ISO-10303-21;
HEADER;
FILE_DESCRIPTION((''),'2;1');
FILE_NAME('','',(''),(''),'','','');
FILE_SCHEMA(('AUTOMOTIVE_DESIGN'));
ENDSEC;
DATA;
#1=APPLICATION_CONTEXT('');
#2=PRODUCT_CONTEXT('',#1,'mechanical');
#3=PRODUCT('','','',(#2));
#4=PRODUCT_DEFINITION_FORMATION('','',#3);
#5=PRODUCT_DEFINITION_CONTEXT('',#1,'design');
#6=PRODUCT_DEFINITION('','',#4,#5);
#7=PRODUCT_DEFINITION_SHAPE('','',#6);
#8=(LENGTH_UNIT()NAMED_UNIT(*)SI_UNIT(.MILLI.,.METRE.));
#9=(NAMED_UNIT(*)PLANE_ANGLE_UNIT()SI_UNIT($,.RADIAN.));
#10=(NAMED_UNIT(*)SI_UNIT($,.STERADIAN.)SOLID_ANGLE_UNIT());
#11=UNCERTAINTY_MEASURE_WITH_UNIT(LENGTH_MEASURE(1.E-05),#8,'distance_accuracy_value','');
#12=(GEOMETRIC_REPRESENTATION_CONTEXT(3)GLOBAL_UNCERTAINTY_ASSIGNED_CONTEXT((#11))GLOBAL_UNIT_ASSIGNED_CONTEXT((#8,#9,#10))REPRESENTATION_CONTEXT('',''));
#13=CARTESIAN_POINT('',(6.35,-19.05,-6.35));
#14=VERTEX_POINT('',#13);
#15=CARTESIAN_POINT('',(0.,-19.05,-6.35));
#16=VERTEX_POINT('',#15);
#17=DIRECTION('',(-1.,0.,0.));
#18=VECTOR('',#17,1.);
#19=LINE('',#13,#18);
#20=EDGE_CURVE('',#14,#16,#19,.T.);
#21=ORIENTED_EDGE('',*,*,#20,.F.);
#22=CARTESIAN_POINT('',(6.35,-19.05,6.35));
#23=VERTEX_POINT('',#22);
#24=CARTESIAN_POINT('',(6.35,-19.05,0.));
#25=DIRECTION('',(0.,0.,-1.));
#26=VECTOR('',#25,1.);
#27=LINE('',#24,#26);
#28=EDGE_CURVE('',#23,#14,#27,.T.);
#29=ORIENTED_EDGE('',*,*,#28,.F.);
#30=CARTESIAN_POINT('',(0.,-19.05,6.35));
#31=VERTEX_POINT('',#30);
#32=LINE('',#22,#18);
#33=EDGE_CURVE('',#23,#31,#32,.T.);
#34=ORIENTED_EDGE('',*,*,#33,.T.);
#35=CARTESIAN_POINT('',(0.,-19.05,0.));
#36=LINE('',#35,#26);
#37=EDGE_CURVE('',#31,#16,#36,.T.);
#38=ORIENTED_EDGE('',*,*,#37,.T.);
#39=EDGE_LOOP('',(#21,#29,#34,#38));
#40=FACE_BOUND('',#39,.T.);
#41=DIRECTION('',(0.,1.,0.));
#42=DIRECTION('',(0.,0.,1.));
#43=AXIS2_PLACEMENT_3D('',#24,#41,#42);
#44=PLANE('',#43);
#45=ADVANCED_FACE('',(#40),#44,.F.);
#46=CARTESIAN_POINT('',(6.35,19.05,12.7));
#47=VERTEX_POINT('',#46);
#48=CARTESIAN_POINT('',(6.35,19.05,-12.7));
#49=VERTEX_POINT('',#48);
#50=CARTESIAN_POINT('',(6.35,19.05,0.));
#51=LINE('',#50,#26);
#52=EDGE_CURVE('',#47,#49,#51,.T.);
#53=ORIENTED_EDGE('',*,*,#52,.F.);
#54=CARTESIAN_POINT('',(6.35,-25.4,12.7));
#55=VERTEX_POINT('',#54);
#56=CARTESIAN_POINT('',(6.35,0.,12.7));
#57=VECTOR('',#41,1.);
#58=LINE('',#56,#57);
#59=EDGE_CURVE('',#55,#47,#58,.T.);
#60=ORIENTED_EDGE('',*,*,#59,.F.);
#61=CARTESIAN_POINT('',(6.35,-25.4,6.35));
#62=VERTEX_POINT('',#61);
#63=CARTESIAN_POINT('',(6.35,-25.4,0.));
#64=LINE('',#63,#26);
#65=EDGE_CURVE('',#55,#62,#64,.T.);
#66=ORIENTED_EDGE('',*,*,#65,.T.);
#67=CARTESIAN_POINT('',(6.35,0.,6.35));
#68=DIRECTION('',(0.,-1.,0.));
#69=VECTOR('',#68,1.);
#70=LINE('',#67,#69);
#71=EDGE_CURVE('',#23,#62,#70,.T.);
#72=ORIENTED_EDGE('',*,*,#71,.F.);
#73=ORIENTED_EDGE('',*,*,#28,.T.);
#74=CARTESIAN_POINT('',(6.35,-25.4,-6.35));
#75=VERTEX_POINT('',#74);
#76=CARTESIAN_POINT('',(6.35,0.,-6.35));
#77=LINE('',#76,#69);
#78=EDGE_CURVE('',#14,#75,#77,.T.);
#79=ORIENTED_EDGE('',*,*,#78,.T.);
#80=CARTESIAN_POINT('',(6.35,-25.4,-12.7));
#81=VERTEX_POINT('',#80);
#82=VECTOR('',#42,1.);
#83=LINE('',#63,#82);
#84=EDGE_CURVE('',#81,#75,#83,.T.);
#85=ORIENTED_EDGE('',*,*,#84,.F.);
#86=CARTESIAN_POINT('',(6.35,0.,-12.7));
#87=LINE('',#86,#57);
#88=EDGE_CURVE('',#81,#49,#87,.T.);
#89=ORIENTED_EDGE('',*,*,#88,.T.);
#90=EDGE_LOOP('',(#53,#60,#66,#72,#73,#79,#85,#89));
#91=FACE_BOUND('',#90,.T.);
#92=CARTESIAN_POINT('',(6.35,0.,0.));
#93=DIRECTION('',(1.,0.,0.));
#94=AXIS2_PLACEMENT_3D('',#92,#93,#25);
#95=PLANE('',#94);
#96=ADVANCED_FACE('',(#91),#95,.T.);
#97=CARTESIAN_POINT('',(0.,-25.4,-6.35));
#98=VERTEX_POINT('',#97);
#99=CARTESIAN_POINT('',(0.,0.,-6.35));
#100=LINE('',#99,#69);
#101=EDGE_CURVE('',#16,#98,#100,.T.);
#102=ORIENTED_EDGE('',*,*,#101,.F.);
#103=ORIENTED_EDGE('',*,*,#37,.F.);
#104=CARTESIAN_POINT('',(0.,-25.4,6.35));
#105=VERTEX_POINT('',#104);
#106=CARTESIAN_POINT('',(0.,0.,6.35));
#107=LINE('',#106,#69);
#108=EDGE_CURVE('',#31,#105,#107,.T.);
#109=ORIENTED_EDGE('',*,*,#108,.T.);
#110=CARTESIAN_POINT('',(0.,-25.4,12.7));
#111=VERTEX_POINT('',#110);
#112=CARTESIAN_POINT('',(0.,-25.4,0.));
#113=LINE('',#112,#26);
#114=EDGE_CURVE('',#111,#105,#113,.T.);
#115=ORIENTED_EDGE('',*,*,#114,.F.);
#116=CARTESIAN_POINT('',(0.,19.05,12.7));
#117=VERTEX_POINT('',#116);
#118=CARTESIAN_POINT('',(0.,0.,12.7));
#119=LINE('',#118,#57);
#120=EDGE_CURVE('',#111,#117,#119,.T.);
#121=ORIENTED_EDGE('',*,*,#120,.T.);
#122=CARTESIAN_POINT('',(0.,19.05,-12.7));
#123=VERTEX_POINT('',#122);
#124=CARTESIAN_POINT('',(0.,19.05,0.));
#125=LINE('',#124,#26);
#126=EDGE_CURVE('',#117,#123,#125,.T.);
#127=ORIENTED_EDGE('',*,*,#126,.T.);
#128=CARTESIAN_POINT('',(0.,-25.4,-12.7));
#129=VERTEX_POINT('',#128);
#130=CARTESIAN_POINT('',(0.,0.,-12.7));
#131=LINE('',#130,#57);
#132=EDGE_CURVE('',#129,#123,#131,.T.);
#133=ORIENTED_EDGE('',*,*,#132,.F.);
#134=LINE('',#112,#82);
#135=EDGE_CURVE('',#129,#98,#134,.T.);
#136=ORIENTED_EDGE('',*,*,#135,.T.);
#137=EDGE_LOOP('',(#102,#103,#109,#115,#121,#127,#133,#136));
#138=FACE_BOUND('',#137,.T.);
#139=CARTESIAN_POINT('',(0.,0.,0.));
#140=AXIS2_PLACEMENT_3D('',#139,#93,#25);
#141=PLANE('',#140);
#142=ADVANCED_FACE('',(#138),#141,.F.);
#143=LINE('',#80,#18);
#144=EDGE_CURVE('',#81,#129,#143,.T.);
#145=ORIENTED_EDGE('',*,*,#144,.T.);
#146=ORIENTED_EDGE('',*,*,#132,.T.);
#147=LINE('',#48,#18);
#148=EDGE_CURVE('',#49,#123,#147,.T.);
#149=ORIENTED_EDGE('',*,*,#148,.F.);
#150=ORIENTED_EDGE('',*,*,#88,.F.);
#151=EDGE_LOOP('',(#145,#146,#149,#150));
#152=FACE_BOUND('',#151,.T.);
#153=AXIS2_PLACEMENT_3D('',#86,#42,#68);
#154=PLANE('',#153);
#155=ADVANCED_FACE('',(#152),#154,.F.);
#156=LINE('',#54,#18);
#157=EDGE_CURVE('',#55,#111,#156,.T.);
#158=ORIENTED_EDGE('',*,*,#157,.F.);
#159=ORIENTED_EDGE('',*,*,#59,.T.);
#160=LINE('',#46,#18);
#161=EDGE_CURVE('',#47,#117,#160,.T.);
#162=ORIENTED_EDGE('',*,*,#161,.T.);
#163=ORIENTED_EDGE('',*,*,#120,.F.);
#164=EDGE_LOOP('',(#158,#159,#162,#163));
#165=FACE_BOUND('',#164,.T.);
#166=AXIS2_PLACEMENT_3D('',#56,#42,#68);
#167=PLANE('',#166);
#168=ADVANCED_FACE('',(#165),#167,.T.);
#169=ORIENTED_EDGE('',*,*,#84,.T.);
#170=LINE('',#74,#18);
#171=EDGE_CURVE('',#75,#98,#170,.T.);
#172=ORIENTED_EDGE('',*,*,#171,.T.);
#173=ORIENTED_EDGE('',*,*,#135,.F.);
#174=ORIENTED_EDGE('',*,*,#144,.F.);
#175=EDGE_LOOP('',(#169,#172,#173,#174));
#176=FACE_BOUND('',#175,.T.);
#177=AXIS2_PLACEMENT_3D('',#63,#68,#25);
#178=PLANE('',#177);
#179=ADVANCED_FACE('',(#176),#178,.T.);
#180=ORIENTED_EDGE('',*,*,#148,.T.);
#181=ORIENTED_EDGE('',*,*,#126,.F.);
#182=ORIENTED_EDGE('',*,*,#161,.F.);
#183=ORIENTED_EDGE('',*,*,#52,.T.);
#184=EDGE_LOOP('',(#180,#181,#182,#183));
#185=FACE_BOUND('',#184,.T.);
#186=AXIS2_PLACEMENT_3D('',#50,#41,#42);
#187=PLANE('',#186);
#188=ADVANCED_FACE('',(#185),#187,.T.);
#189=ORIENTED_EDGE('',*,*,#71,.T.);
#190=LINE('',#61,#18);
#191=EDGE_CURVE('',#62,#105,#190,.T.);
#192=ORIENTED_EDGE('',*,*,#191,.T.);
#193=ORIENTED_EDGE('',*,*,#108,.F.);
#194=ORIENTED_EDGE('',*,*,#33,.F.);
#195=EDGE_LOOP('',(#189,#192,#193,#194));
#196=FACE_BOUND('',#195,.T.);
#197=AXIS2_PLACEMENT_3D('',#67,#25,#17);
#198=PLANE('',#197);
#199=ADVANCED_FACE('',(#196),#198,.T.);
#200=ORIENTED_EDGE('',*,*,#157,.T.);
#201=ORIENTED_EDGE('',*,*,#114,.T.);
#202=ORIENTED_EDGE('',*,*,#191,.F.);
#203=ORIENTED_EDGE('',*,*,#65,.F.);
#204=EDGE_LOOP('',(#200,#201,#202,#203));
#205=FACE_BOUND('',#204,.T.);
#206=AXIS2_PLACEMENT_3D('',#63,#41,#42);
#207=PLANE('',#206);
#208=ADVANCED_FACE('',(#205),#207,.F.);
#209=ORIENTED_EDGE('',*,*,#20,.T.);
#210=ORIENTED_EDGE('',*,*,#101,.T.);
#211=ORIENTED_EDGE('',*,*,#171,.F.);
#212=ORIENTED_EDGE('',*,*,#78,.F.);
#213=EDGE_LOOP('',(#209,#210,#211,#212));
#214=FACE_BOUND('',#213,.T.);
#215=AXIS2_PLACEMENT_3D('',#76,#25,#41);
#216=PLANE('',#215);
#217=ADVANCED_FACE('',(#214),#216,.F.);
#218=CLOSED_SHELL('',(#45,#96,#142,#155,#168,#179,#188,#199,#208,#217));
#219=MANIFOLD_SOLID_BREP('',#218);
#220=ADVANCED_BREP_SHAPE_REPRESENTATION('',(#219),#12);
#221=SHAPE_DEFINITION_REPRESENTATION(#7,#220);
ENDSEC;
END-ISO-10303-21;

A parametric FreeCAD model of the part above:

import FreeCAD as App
import Part
import Sketcher

V = App.Vector
Q = App.Units.Quantity

doc = App.newDocument("Part")
params = doc.addObject("Spreadsheet::Sheet", "Params")
for row, (alias, value) in enumerate([
    ("sketch1_height", "1 in"),
    ("sketch1_height2", "0.5 in"),
    ("sketch1_width", "1.75 in"),
    ("pad1_length", "0.25 in"),
], start=1):
    params.set(f"A{row}", alias)
    params.set(f"B{row}", "=" + value)
    params.setAlias(f"B{row}", alias)

body = doc.addObject("PartDesign::Body", "Body")

# Sketch on YZ plane
sketch1 = body.newObject("Sketcher::SketchObject", "Sketch")
sketch1.AttachmentSupport = (doc.getObject("YZ_Plane"), [""])
sketch1.MapMode = "FlatFace"
sketch1.addGeometry(Part.LineSegment(V(-19, 6, 0), V(-19, -6, 0)), False)
sketch1.addGeometry(Part.LineSegment(V(-19, -6, 0), V(-25, -6, 0)), False)
sketch1.addGeometry(Part.LineSegment(V(-25, -6, 0), V(-25, -13, 0)), False)
sketch1.addGeometry(Part.LineSegment(V(-25, -13, 0), V(19, -13, 0)), False)
sketch1.addGeometry(Part.LineSegment(V(19, -13, 0), V(19, 13, 0)), False)
sketch1.addGeometry(Part.LineSegment(V(19, 13, 0), V(-25, 13, 0)), False)
sketch1.addGeometry(Part.LineSegment(V(-25, 13, 0), V(-25, 6, 0)), False)
sketch1.addGeometry(Part.LineSegment(V(-25, 6, 0), V(-19, 6, 0)), False)
sketch1.addConstraint(Sketcher.Constraint("Coincident", 0, 2, 1, 1))
sketch1.addConstraint(Sketcher.Constraint("Coincident", 1, 2, 2, 1))
sketch1.addConstraint(Sketcher.Constraint("Coincident", 2, 2, 3, 1))
sketch1.addConstraint(Sketcher.Constraint("Coincident", 3, 2, 4, 1))
sketch1.addConstraint(Sketcher.Constraint("Coincident", 4, 2, 5, 1))
sketch1.addConstraint(Sketcher.Constraint("Coincident", 5, 2, 6, 1))
sketch1.addConstraint(Sketcher.Constraint("Coincident", 6, 2, 7, 1))
sketch1.addConstraint(Sketcher.Constraint("Coincident", 7, 2, 0, 1))
sketch1.addConstraint(Sketcher.Constraint("Vertical", 0))
sketch1.addConstraint(Sketcher.Constraint("Horizontal", 1))
sketch1.addConstraint(Sketcher.Constraint("Vertical", 2))
sketch1.addConstraint(Sketcher.Constraint("Horizontal", 3))
sketch1.addConstraint(Sketcher.Constraint("Vertical", 4))
sketch1.addConstraint(Sketcher.Constraint("Horizontal", 5))
sketch1.addConstraint(Sketcher.Constraint("Vertical", 6))
sketch1.addConstraint(Sketcher.Constraint("Horizontal", 7))
sketch1.addConstraint(Sketcher.Constraint("Symmetric", 2, 2, 5, 2, -1))
sketch1.addConstraint(Sketcher.Constraint("Equal", 7, 2))
sketch1.addConstraint(Sketcher.Constraint("Equal", 2, 6))
sketch1.addConstraint(Sketcher.Constraint("DistanceY", 4, 1, 4, 2, Q("1 in")))
sketch1.addConstraint(Sketcher.Constraint("DistanceY", 0, 2, 0, 1, Q("0.5 in")))
sketch1.addConstraint(Sketcher.Constraint("DistanceX", 1, 2, -1, 1, Q("1 in")))
sketch1.addConstraint(Sketcher.Constraint("DistanceX", 3, 1, 3, 2, Q("1.75 in")))
sketch1.setExpression("Constraints[19]", "Params.sketch1_height")
sketch1.setExpression("Constraints[20]", "Params.sketch1_height2")
sketch1.setExpression("Constraints[22]", "Params.sketch1_width")
pad1 = body.newObject("PartDesign::Pad", "Pad")
pad1.Profile = sketch1
pad1.setExpression("Length", "Params.pad1_length")

doc.recompute()
